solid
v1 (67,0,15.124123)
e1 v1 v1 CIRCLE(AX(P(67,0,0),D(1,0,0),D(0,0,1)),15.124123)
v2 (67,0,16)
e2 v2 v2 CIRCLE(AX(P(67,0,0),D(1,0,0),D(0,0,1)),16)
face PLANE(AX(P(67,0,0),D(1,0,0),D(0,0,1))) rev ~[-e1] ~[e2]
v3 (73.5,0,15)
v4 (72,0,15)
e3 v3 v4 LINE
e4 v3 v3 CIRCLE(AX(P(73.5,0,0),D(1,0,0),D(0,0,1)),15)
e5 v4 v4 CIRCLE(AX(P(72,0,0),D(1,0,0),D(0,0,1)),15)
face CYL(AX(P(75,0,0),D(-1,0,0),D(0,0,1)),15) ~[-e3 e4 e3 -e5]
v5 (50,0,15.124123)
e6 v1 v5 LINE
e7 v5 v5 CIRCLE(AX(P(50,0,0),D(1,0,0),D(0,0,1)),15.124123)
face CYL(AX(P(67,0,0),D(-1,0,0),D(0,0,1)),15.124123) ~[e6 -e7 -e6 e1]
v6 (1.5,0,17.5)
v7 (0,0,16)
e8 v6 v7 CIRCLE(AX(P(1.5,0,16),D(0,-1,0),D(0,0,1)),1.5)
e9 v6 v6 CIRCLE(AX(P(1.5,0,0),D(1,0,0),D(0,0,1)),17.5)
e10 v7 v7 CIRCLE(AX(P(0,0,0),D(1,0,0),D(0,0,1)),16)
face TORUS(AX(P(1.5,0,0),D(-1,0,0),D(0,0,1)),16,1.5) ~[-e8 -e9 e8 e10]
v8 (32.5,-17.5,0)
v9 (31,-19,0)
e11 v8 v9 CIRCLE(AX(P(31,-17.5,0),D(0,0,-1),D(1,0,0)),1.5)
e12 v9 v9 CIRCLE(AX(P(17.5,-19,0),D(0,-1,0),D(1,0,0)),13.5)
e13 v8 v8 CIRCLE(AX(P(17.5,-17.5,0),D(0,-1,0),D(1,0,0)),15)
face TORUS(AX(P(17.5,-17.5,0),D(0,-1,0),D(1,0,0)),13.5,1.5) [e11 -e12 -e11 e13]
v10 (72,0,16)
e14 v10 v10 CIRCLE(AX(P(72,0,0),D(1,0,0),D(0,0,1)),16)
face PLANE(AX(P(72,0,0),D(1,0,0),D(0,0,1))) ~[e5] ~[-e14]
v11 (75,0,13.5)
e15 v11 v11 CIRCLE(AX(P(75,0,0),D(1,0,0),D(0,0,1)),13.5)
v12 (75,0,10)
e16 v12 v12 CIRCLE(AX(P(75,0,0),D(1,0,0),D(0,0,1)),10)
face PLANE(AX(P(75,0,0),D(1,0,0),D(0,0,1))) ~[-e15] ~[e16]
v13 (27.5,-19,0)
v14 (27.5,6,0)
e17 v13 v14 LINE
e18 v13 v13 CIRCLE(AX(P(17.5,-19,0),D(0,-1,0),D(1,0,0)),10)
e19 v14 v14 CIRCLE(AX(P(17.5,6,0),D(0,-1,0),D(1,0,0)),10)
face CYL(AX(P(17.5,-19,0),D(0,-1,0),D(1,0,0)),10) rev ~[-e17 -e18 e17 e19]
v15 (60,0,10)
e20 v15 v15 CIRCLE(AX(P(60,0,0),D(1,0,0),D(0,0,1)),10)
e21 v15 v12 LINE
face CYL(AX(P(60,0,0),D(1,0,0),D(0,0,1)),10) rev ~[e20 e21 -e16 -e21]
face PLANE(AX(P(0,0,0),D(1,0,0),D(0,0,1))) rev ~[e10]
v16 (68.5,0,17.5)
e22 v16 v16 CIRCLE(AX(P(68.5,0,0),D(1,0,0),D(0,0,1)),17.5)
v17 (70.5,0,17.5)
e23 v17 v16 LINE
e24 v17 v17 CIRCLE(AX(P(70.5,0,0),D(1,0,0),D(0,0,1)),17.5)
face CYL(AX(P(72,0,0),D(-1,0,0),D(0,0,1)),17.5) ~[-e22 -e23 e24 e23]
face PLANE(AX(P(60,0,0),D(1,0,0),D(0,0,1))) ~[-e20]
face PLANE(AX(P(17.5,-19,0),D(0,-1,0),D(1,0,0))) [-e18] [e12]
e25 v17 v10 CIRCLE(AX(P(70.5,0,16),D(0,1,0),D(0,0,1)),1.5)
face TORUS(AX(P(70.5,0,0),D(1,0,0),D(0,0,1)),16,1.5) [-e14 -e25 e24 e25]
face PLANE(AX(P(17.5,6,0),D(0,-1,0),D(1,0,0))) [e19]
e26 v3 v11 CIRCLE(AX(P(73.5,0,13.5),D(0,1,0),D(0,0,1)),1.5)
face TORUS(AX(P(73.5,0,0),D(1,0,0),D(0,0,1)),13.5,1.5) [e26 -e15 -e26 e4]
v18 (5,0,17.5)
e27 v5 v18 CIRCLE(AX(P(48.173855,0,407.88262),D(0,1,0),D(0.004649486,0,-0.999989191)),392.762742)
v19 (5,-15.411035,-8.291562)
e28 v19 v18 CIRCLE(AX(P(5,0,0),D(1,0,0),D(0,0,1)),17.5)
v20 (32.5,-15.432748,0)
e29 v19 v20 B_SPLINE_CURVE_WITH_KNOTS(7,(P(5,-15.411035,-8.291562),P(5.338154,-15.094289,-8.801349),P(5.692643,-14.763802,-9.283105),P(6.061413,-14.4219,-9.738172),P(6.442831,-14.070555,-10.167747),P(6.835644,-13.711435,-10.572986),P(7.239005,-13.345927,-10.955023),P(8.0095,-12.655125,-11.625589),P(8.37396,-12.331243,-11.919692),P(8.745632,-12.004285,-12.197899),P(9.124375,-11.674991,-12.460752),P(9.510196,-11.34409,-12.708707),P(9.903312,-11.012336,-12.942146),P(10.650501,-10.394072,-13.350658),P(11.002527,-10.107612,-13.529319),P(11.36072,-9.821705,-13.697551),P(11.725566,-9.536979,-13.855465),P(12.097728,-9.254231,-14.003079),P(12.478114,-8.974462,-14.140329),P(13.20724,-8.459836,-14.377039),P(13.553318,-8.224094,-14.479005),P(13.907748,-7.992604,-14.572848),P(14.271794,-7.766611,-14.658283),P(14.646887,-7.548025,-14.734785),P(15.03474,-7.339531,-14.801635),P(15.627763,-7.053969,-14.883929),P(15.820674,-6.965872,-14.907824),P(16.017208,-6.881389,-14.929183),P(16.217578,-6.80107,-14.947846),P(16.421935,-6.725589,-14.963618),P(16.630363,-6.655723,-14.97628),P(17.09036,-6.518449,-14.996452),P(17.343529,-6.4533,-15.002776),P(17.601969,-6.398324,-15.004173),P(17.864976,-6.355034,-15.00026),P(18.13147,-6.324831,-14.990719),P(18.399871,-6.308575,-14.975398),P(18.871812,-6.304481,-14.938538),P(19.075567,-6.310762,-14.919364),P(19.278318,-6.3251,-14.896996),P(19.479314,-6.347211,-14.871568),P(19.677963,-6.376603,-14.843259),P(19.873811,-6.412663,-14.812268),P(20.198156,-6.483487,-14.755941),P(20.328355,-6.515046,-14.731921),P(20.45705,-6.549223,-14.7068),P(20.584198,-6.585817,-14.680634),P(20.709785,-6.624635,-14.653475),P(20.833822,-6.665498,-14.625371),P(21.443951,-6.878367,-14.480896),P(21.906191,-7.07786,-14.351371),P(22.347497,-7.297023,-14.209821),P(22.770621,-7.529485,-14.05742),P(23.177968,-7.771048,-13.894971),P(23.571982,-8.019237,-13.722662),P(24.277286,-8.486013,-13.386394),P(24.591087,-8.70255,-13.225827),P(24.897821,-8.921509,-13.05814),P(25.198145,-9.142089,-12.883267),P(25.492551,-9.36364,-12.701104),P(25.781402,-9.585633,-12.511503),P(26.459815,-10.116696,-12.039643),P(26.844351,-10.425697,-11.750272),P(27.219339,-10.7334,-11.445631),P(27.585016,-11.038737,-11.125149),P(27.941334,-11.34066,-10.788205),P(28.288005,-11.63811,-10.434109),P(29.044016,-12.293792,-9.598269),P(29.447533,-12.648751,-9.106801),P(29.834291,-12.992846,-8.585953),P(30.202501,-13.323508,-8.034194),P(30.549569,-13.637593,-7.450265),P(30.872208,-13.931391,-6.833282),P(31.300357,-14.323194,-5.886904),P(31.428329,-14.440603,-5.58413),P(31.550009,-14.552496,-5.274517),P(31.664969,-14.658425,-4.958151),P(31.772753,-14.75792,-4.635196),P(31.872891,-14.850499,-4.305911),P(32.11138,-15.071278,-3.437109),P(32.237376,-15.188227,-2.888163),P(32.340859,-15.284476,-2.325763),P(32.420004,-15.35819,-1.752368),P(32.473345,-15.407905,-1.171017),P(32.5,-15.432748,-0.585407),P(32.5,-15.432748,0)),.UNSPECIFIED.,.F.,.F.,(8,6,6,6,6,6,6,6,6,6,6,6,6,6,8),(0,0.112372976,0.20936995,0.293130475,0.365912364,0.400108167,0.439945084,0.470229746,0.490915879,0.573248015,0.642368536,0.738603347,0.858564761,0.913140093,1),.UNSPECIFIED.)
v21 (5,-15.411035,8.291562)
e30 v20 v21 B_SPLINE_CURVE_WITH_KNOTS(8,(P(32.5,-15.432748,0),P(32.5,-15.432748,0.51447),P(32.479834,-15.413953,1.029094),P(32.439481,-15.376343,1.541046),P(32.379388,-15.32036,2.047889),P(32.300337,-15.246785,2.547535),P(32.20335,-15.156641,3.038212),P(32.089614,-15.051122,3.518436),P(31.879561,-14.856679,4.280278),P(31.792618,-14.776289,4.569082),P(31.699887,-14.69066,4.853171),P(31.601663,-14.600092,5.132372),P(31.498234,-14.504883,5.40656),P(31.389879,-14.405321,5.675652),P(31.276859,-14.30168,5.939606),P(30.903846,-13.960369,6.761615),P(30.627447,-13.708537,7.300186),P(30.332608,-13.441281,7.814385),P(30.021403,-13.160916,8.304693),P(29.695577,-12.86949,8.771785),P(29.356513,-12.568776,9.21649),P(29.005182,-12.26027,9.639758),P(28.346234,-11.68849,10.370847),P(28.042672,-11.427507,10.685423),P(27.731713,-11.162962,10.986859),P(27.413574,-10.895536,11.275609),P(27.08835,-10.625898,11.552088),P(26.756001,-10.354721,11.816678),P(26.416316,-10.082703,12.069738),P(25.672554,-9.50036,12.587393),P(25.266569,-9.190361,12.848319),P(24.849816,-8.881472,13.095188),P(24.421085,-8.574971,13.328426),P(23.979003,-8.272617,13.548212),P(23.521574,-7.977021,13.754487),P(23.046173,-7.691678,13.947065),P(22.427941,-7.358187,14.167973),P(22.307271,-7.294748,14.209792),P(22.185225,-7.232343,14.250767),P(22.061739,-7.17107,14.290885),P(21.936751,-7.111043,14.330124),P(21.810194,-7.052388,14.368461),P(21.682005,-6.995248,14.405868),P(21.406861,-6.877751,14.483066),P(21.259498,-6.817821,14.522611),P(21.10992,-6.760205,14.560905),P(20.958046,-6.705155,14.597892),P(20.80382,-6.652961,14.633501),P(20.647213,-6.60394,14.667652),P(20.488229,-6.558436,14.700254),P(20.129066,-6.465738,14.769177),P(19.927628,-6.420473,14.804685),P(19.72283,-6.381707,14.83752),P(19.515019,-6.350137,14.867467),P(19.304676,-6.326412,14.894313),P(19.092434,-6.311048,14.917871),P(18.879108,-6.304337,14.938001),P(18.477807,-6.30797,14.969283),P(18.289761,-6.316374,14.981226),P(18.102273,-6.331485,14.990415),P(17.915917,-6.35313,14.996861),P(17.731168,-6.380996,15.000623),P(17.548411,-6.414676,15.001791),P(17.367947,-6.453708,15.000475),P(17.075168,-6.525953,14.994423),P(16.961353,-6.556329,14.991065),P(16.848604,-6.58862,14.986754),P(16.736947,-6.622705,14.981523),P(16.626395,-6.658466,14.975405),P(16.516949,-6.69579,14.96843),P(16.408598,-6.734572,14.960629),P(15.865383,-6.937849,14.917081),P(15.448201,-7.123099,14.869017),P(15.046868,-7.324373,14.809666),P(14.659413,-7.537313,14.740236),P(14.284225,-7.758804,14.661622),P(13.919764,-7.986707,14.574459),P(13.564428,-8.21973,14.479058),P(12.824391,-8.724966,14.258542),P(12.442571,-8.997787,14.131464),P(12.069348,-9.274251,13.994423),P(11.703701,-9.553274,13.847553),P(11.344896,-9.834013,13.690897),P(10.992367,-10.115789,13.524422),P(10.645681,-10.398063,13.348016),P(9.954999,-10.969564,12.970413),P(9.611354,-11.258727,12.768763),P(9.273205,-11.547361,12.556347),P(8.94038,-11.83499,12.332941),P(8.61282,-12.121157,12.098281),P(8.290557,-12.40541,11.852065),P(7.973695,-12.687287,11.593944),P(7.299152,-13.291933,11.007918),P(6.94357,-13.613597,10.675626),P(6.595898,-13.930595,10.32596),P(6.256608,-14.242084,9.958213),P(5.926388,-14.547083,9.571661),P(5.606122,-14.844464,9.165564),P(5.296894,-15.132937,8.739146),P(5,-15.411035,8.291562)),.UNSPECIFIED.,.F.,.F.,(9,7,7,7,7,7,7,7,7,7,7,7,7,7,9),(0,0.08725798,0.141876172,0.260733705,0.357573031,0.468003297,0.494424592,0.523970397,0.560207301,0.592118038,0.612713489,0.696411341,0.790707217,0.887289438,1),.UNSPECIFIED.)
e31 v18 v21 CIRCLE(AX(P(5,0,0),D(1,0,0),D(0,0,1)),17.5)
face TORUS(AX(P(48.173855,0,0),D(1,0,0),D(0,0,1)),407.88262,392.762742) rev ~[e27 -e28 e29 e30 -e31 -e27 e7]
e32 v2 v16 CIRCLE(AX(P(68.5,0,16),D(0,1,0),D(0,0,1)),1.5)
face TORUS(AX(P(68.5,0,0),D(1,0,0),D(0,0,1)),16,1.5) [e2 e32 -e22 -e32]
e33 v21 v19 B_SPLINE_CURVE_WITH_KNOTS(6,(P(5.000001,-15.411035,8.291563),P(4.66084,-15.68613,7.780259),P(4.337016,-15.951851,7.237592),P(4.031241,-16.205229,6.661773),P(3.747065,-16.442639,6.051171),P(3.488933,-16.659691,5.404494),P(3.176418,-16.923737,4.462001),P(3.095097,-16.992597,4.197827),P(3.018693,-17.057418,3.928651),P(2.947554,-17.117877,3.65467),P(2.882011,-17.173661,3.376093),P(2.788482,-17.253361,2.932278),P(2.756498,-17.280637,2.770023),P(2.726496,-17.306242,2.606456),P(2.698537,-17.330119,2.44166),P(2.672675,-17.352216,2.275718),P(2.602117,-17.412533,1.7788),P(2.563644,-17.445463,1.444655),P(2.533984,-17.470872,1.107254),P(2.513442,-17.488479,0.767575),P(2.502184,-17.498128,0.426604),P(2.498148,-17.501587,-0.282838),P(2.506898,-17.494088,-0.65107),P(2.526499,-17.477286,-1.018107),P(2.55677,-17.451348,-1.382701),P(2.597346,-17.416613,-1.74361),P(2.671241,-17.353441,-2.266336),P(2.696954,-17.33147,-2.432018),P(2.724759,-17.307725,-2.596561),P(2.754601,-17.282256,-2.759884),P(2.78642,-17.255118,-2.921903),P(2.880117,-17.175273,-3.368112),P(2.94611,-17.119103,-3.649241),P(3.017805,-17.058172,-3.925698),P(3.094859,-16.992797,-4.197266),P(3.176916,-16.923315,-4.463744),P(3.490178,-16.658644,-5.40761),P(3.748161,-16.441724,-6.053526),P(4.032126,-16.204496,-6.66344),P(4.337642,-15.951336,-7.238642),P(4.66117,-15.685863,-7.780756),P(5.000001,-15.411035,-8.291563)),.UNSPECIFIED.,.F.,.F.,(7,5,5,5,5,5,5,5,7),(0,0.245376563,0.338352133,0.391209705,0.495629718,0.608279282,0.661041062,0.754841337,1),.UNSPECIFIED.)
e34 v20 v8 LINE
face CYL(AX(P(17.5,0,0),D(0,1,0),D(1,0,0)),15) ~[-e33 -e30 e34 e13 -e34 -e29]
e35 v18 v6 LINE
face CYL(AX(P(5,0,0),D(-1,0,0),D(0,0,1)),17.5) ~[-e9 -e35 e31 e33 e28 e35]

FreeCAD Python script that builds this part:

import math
import FreeCAD as App
import Part
import Sketcher
from FreeCAD import Vector


def edges_at(feature, points):
    """Names of the edges that pass closest to the given points."""
    edges = feature.Shape.Edges
    near = lambda p: min(range(len(edges)), key=lambda i: edges[i].distToShape(Part.Vertex(*p))[0])
    return sorted({f"Edge{near(p) + 1}" for p in points})

doc = App.newDocument("Part")
body = doc.addObject("PartDesign::Body", "Body")

sketch1 = body.newObject("Sketcher::SketchObject", "Sketch")
sketch1.AttachmentSupport = (doc.getObject("XZ_Plane"), [""])
sketch1.MapMode = "FlatFace"
sketch1.addGeometry(Part.LineSegment(Vector(0, 17.5, 0), Vector(0, 0, 0)), False)
sketch1.addGeometry(Part.LineSegment(Vector(0, 0, 0), Vector(60, 0, 0)), False)
sketch1.addGeometry(Part.LineSegment(Vector(60, 0, 0), Vector(60, 10, 0)), False)
sketch1.addGeometry(Part.LineSegment(Vector(60, 10, 0), Vector(75, 10, 0)), False)
sketch1.addGeometry(Part.LineSegment(Vector(75, 10, 0), Vector(75, 15, 0)), False)
sketch1.addGeometry(Part.LineSegment(Vector(75, 15, 0), Vector(72, 15, 0)), False)
sketch1.addGeometry(Part.LineSegment(Vector(72, 15, 0), Vector(72, 17.5, 0)), False)
sketch1.addGeometry(Part.LineSegment(Vector(72, 17.5, 0), Vector(67, 17.5, 0)), False)
sketch1.addGeometry(Part.LineSegment(Vector(67, 17.5, 0), Vector(67, 15.124123, 0)), False)
sketch1.addGeometry(Part.LineSegment(Vector(67, 15.124123, 0), Vector(50, 15.124123, 0)), False)
sketch1.addGeometry(Part.ArcOfCircle(Part.Circle(Vector(48.173855, 407.88262, 0), Vector(0, 0, 1), 392.762742), math.radians(-96.310906), math.radians(-89.733603)), False)
sketch1.addGeometry(Part.LineSegment(Vector(5, 17.5, 0), Vector(0, 17.5, 0)), False)
sketch1.addConstraint(Sketcher.Constraint("Coincident", 0, 2, 1, 1))
sketch1.addConstraint(Sketcher.Constraint("Coincident", 1, 2, 2, 1))
sketch1.addConstraint(Sketcher.Constraint("Coincident", 2, 2, 3, 1))
sketch1.addConstraint(Sketcher.Constraint("Coincident", 3, 2, 4, 1))
sketch1.addConstraint(Sketcher.Constraint("Coincident", 4, 2, 5, 1))
sketch1.addConstraint(Sketcher.Constraint("Coincident", 5, 2, 6, 1))
sketch1.addConstraint(Sketcher.Constraint("Coincident", 6, 2, 7, 1))
sketch1.addConstraint(Sketcher.Constraint("Coincident", 7, 2, 8, 1))
sketch1.addConstraint(Sketcher.Constraint("Coincident", 8, 2, 9, 1))
sketch1.addConstraint(Sketcher.Constraint("Coincident", 9, 2, 10, 2))
sketch1.addConstraint(Sketcher.Constraint("Coincident", 10, 1, 11, 1))
sketch1.addConstraint(Sketcher.Constraint("Coincident", 11, 2, 0, 1))
sketch1.addConstraint(Sketcher.Constraint("Vertical", 0))
sketch1.addConstraint(Sketcher.Constraint("Horizontal", 1))
sketch1.addConstraint(Sketcher.Constraint("Vertical", 2))
sketch1.addConstraint(Sketcher.Constraint("Horizontal", 3))
sketch1.addConstraint(Sketcher.Constraint("Vertical", 4))
sketch1.addConstraint(Sketcher.Constraint("Horizontal", 5))
sketch1.addConstraint(Sketcher.Constraint("Vertical", 6))
sketch1.addConstraint(Sketcher.Constraint("Horizontal", 7))
sketch1.addConstraint(Sketcher.Constraint("Vertical", 8))
sketch1.addConstraint(Sketcher.Constraint("Horizontal", 9))
sketch1.addConstraint(Sketcher.Constraint("Horizontal", 11))
sketch1.addConstraint(Sketcher.Constraint("Coincident", 0, 2, -1, 1))
sketch1.addConstraint(Sketcher.Constraint("Horizontal", 7, 2, 10, 1))
sketch1.addConstraint(Sketcher.Constraint("Equal", 7, 11))
sketch1.addConstraint(Sketcher.Constraint("Equal", 11, 4))
sketch1.addConstraint(Sketcher.Constraint("DistanceX", 1, 1, 1, 2, 60.0))
sketch1.addConstraint(Sketcher.Constraint("DistanceX", 3, 1, 3, 2, 15.0))
sketch1.addConstraint(Sketcher.Constraint("DistanceX", 5, 2, 5, 1, 3.0))
sketch1.addConstraint(Sketcher.Constraint("DistanceX", 7, 2, 7, 1, 5.0))
sketch1.addConstraint(Sketcher.Constraint("DistanceX", 9, 2, 9, 1, 17.0))
sketch1.addConstraint(Sketcher.Constraint("DistanceY", 2, 1, 2, 2, 10.0))
sketch1.addConstraint(Sketcher.Constraint("DistanceY", 0, 2, 0, 1, 17.5))
sketch1.addConstraint(Sketcher.Constraint("Radius", 10, 392.762742))
sketch1.addConstraint(Sketcher.Constraint("DistanceY", 8, 2, 8, 1, 2.375877))
revolution = body.newObject("PartDesign::Revolution", "Revolution")
revolution.Profile = sketch1
revolution.ReferenceAxis = (sketch1, ["H_Axis"])
revolution.Angle = 360

sketch2 = body.newObject("Sketcher::SketchObject", "Sketch001")
sketch2.AttachmentSupport = (doc.getObject("XZ_Plane"), [""])
sketch2.MapMode = "FlatFace"
sketch2.addGeometry(Part.Circle(Vector(17.5, 0, 0), Vector(0, 0, 1), 15), False)
sketch2.addConstraint(Sketcher.Constraint("PointOnObject", 0, 3, -1))
sketch2.addConstraint(Sketcher.Constraint("Diameter", 0, 30.0))
sketch2.addConstraint(Sketcher.Constraint("DistanceX", -1, 1, 0, 3, 17.5))
pad1 = body.newObject("PartDesign::Pad", "Pad")
pad1.Profile = sketch2
pad1.Length = 19

sketch3 = body.newObject("Sketcher::SketchObject", "Sketch002")
sketch3.AttachmentSupport = (doc.getObject("XZ_Plane"), [""])
sketch3.MapMode = "FlatFace"
sketch3.AttachmentOffset = App.Placement(Vector(0, 0, 19), App.Rotation())
sketch3.addGeometry(Part.Circle(Vector(17.5, 0, 0), Vector(0, 0, 1), 10), False)
sketch3.addConstraint(Sketcher.Constraint("PointOnObject", 0, 3, -1))
sketch3.addConstraint(Sketcher.Constraint("Diameter", 0, 20.0))
sketch3.addConstraint(Sketcher.Constraint("DistanceX", -1, 1, 0, 3, 17.5))
pocket1 = body.newObject("PartDesign::Pocket", "Pocket")
pocket1.Profile = sketch3
pocket1.Length = 25
doc.recompute()

fillet = body.newObject("PartDesign::Fillet", "Fillet")
fillet.Base = (pocket1, edges_at(pocket1, [
    (0, 0, -17.5),
    (2.5, -19, 0),
    (67, 0, -17.5),
    (72, 0, -17.5),
    (75, 0, -15),
]))
fillet.Radius = 1.5

doc.recompute()
